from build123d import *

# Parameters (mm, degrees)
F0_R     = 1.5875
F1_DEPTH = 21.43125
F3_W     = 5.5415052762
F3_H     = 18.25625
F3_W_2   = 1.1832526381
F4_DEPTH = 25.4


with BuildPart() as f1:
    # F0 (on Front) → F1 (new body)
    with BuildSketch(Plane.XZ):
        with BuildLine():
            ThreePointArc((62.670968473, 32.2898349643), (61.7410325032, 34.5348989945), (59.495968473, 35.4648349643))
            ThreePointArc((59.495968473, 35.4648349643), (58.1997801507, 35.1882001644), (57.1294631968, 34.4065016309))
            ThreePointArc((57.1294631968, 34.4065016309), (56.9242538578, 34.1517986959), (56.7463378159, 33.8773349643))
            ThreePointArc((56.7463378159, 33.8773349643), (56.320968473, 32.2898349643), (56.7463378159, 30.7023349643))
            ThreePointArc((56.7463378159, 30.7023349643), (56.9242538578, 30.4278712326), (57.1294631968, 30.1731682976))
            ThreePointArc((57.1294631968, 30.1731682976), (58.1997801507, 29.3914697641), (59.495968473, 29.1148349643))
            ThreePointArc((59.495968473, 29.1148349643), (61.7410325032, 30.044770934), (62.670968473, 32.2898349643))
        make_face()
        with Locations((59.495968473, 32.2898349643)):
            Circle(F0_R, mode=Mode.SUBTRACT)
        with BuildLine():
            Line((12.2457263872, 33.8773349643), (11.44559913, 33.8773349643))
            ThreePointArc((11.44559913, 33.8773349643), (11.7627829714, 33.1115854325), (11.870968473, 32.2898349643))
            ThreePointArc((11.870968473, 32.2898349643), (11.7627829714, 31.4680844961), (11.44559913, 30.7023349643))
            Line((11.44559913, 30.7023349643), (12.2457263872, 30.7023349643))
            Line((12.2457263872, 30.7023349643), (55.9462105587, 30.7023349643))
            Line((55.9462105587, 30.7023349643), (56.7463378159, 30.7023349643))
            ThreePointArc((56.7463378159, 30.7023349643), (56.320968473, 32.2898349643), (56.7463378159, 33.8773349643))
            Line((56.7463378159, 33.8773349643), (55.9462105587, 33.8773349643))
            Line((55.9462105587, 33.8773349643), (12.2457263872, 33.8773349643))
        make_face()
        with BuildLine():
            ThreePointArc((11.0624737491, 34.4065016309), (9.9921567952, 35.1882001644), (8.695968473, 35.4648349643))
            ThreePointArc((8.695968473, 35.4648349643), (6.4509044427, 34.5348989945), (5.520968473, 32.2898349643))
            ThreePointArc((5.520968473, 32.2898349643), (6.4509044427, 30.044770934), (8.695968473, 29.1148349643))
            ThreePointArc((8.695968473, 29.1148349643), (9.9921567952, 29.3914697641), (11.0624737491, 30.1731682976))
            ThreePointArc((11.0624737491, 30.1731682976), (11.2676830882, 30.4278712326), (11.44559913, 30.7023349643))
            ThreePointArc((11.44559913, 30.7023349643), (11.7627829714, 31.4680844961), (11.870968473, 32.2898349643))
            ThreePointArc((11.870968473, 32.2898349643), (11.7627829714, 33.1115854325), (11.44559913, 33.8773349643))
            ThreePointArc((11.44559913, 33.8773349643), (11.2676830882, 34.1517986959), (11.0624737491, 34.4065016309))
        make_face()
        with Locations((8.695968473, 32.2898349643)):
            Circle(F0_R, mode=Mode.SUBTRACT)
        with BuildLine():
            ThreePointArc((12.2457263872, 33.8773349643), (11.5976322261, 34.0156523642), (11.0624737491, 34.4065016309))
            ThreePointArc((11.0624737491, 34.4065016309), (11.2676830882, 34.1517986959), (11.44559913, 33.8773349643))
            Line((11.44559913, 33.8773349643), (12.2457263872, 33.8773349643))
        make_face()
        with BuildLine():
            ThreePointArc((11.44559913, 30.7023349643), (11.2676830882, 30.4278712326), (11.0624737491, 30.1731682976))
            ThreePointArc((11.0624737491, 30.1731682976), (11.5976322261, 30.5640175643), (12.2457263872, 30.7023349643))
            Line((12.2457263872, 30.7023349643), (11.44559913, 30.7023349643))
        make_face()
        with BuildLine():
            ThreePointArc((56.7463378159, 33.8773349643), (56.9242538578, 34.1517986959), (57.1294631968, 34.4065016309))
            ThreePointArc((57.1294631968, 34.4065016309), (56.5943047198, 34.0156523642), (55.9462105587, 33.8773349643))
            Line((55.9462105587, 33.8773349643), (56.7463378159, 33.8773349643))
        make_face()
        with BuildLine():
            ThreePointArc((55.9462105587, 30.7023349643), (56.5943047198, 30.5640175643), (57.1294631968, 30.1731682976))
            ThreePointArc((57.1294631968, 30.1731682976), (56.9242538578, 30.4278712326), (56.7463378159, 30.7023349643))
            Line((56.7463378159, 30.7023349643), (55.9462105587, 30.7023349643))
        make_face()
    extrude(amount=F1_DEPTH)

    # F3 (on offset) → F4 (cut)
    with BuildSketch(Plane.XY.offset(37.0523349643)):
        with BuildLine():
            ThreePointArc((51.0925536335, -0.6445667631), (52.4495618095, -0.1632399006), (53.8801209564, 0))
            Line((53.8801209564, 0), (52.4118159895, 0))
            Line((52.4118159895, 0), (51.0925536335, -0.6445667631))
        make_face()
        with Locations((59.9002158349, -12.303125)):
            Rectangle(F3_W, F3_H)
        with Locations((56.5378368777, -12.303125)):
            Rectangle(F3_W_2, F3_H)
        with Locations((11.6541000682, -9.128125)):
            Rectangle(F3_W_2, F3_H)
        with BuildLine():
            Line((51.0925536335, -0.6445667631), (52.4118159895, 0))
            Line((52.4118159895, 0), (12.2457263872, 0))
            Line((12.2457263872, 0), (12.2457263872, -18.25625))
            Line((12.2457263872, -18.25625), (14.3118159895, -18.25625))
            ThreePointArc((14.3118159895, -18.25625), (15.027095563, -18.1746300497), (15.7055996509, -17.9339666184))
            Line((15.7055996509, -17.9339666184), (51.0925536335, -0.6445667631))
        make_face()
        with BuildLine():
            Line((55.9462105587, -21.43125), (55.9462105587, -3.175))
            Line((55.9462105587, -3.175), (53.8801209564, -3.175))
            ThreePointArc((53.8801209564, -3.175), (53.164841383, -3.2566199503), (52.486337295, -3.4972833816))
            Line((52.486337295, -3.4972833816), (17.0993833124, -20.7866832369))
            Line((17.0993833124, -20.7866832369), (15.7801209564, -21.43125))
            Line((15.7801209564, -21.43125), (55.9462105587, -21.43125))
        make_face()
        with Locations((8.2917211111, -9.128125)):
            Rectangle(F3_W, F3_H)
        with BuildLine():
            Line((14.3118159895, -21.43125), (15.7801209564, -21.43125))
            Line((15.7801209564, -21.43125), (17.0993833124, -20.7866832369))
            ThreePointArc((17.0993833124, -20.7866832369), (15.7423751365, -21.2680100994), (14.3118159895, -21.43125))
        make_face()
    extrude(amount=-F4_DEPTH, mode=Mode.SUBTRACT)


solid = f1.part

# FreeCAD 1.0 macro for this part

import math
import FreeCAD as App
import Part
import Sketcher
from FreeCAD import Vector
Q = App.Units.Quantity

doc = App.newDocument("Part")
params = doc.addObject("Spreadsheet::Sheet", "Params")
for row, (alias, value) in enumerate([
    ("sketch1_diameter", "0.125 in"),
    ("sketch1_radius", "0.125 in"),
    ("pad1_length", "0.84375 in"),
    ("sketch2_radius", "0.25 in"),
    ("sketch2_radius2", "0.125 in"),
    ("sketch2_height", "0.71875 in"),
    ("pocket1_length", "1 in"),
], start=1):
    params.set(f"A{row}", alias)
    params.set(f"B{row}", "=" + value)
    params.setAlias(f"B{row}", alias)

body = doc.addObject("PartDesign::Body", "Body")

# Sketch on XZ plane
sketch1 = body.newObject("Sketcher::SketchObject", "Sketch")
sketch1.AttachmentSupport = (doc.getObject("XZ_Plane"), [""])
sketch1.MapMode = "FlatFace"
sketch1.addGeometry(Part.ArcOfCircle(Part.Circle(Vector(59.5, 32.3, 0), Vector(0, 0, 1), 3.2), math.radians(0), math.radians(90)), False)
sketch1.addGeometry(Part.ArcOfCircle(Part.Circle(Vector(59.5, 32.3, 0), Vector(0, 0, 1), 3.2), math.radians(90), math.radians(138)), False)
sketch1.addGeometry(Part.ArcOfCircle(Part.Circle(Vector(55.9, 35.5, 0), Vector(0, 0, 1), 1.6), math.radians(-90), math.radians(-42)), False)
sketch1.addGeometry(Part.LineSegment(Vector(55.9, 33.9, 0), Vector(12.2, 33.9, 0)), False)
sketch1.addGeometry(Part.ArcOfCircle(Part.Circle(Vector(12.2, 35.5, 0), Vector(0, 0, 1), 1.6), math.radians(-138), math.radians(-90)), False)
sketch1.addGeometry(Part.ArcOfCircle(Part.Circle(Vector(8.7, 32.3, 0), Vector(0, 0, 1), 3.2), math.radians(42), math.radians(90)), False)
sketch1.addGeometry(Part.ArcOfCircle(Part.Circle(Vector(8.7, 32.3, 0), Vector(0, 0, 1), 3.2), math.radians(90), math.radians(180)), False)
sketch1.addGeometry(Part.ArcOfCircle(Part.Circle(Vector(8.7, 32.3, 0), Vector(0, 0, 1), 3.2), math.radians(180), math.radians(270)), False)
sketch1.addGeometry(Part.ArcOfCircle(Part.Circle(Vector(8.7, 32.3, 0), Vector(0, 0, 1), 3.2), math.radians(-90), math.radians(-42)), False)
sketch1.addGeometry(Part.ArcOfCircle(Part.Circle(Vector(12.2, 29.1, 0), Vector(0, 0, 1), 1.6), math.radians(90), math.radians(138)), False)
sketch1.addGeometry(Part.LineSegment(Vector(12.2, 30.7, 0), Vector(55.9, 30.7, 0)), False)
sketch1.addGeometry(Part.ArcOfCircle(Part.Circle(Vector(55.9, 29.1, 0), Vector(0, 0, 1), 1.6), math.radians(42), math.radians(90)), False)
sketch1.addGeometry(Part.ArcOfCircle(Part.Circle(Vector(59.5, 32.3, 0), Vector(0, 0, 1), 3.2), math.radians(-138), math.radians(-90)), False)
sketch1.addGeometry(Part.ArcOfCircle(Part.Circle(Vector(59.5, 32.3, 0), Vector(0, 0, 1), 3.2), math.radians(-90), math.radians(0)), False)
sketch1.addGeometry(Part.Circle(Vector(8.7, 32.3, 0), Vector(0, 0, 1), 1.6), False)
sketch1.addGeometry(Part.Circle(Vector(59.5, 32.3, 0), Vector(0, 0, 1), 1.6), False)
sketch1.addConstraint(Sketcher.Constraint("Tangent", 0, 2, 1, 1))
sketch1.addConstraint(Sketcher.Constraint("Tangent", 1, 2, 2, 2))
sketch1.addConstraint(Sketcher.Constraint("Tangent", 2, 1, 3, 1))
sketch1.addConstraint(Sketcher.Constraint("Tangent", 3, 2, 4, 2))
sketch1.addConstraint(Sketcher.Constraint("Tangent", 4, 1, 5, 1))
sketch1.addConstraint(Sketcher.Constraint("Tangent", 5, 2, 6, 1))
sketch1.addConstraint(Sketcher.Constraint("Tangent", 6, 2, 7, 1))
sketch1.addConstraint(Sketcher.Constraint("Tangent", 7, 2, 8, 1))
sketch1.addConstraint(Sketcher.Constraint("Tangent", 8, 2, 9, 2))
sketch1.addConstraint(Sketcher.Constraint("Tangent", 9, 1, 10, 1))
sketch1.addConstraint(Sketcher.Constraint("Tangent", 10, 2, 11, 2))
sketch1.addConstraint(Sketcher.Constraint("Tangent", 11, 1, 12, 1))
sketch1.addConstraint(Sketcher.Constraint("Tangent", 12, 2, 13, 1))
sketch1.addConstraint(Sketcher.Constraint("Tangent", 13, 2, 0, 1))
sketch1.addConstraint(Sketcher.Constraint("Horizontal", 3))
sketch1.addConstraint(Sketcher.Constraint("Horizontal", 10))
sketch1.addConstraint(Sketcher.Constraint("Coincident", 7, 3, 5, 3))
sketch1.addConstraint(Sketcher.Constraint("Coincident", 12, 3, 0, 3))
sketch1.addConstraint(Sketcher.Constraint("Coincident", 14, 3, 5, 3))
sketch1.addConstraint(Sketcher.Constraint("Coincident", 15, 3, 0, 3))
sketch1.addConstraint(Sketcher.Constraint("Equal", 0, 1))
sketch1.addConstraint(Sketcher.Constraint("Equal", 2, 4))
sketch1.addConstraint(Sketcher.Constraint("Equal", 1, 5))
sketch1.addConstraint(Sketcher.Constraint("Equal", 7, 8))
sketch1.addConstraint(Sketcher.Constraint("Equal", 4, 9))
sketch1.addConstraint(Sketcher.Constraint("Equal", 9, 11))
sketch1.addConstraint(Sketcher.Constraint("Equal", 11, 14))
sketch1.addConstraint(Sketcher.Constraint("Equal", 14, 15))
sketch1.addConstraint(Sketcher.Constraint("Horizontal", 1, 3, 5, 3))
sketch1.addConstraint(Sketcher.Constraint("Horizontal", 4, 3, 0, 2))
sketch1.addConstraint(Sketcher.Constraint("Horizontal", 15, 3, 6, 2))
sketch1.addConstraint(Sketcher.Constraint("Horizontal", 11, 3, 7, 2))
sketch1.addConstraint(Sketcher.Constraint("Horizontal", 6, 2, 13, 2))
sketch1.addConstraint(Sketcher.Constraint("Vertical", 15, 3, 0, 2))
sketch1.addConstraint(Sketcher.Constraint("Vertical", 14, 3, 5, 2))
sketch1.addConstraint(Sketcher.Constraint("Vertical", 5, 2, 7, 2))
sketch1.addConstraint(Sketcher.Constraint("Vertical", 0, 2, 12, 2))
sketch1.addConstraint(Sketcher.Constraint("Diameter", 14, Q("0.125 in")))
sketch1.addConstraint(Sketcher.Constraint("Radius", 0, Q("0.125 in")))
sketch1.addConstraint(Sketcher.Constraint("DistanceX", 5, 3, 0, 3, Q("2 in")))
sketch1.addConstraint(Sketcher.Constraint("DistanceY", -1, 1, 1, 2, 34.406502))
sketch1.addConstraint(Sketcher.Constraint("DistanceX", -1, 1, 0, 3, 59.495968))
sketch1.setExpression("Constraints[37]", "Params.sketch1_diameter")
sketch1.setExpression("Constraints[38]", "Params.sketch1_radius")
pad1 = body.newObject("PartDesign::Pad", "Pad")
pad1.Profile = sketch1
pad1.setExpression("Length", "Params.pad1_length")

# Sketch on XY plane
sketch2 = body.newObject("Sketcher::SketchObject", "Sketch001")
sketch2.AttachmentSupport = (doc.getObject("XY_Plane"), [""])
sketch2.MapMode = "FlatFace"
sketch2.AttachmentOffset = App.Placement(Vector(0, 0, 37.052335), App.Rotation())
sketch2.addGeometry(Part.ArcOfCircle(Part.Circle(Vector(53.9, -6.3, 0), Vector(0, 0, 1), 6.3), math.radians(90), math.radians(116)), False)
sketch2.addGeometry(Part.LineSegment(Vector(53.9, 0, 0), Vector(5.5, 0, 0)), False)
sketch2.addGeometry(Part.LineSegment(Vector(5.5, 0, 0), Vector(5.5, -18.3, 0)), False)
sketch2.addGeometry(Part.LineSegment(Vector(5.5, -18.3, 0), Vector(14.3, -18.3, 0)), False)
sketch2.addGeometry(Part.ArcOfCircle(Part.Circle(Vector(14.3, -15.1, 0), Vector(0, 0, 1), 3.2), math.radians(-90), math.radians(-64)), False)
sketch2.addGeometry(Part.LineSegment(Vector(15.7, -17.9, 0), Vector(51.1, -0.6, 0)), False)
sketch2.addGeometry(Part.LineSegment(Vector(62.7, -21.4, 0), Vector(62.7, -3.2, 0)), False)
sketch2.addGeometry(Part.LineSegment(Vector(62.7, -3.2, 0), Vector(53.9, -3.2, 0)), False)
sketch2.addGeometry(Part.ArcOfCircle(Part.Circle(Vector(53.9, -6.3, 0), Vector(0, 0, 1), 3.2), math.radians(90), math.radians(116)), False)
sketch2.addGeometry(Part.LineSegment(Vector(52.5, -3.5, 0), Vector(17.1, -20.8, 0)), False)
sketch2.addGeometry(Part.ArcOfCircle(Part.Circle(Vector(14.3, -15.1, 0), Vector(0, 0, 1), 6.3), math.radians(-90), math.radians(-64)), False)
sketch2.addGeometry(Part.LineSegment(Vector(14.3, -21.4, 0), Vector(62.7, -21.4, 0)), False)
sketch2.addConstraint(Sketcher.Constraint("Tangent", 0, 1, 1, 1))
sketch2.addConstraint(Sketcher.Constraint("Coincident", 1, 2, 2, 1))
sketch2.addConstraint(Sketcher.Constraint("Coincident", 2, 2, 3, 1))
sketch2.addConstraint(Sketcher.Constraint("Tangent", 3, 2, 4, 1))
sketch2.addConstraint(Sketcher.Constraint("Tangent", 4, 2, 5, 1))
sketch2.addConstraint(Sketcher.Constraint("Tangent", 5, 2, 0, 2))
sketch2.addConstraint(Sketcher.Constraint("Coincident", 6, 2, 7, 1))
sketch2.addConstraint(Sketcher.Constraint("Tangent", 7, 2, 8, 1))
sketch2.addConstraint(Sketcher.Constraint("Tangent", 8, 2, 9, 1))
sketch2.addConstraint(Sketcher.Constraint("Tangent", 9, 2, 10, 2))
sketch2.addConstraint(Sketcher.Constraint("Tangent", 10, 1, 11, 1))
sketch2.addConstraint(Sketcher.Constraint("Coincident", 11, 2, 6, 1))
sketch2.addConstraint(Sketcher.Constraint("Horizontal", 1))
sketch2.addConstraint(Sketcher.Constraint("Vertical", 2))
sketch2.addConstraint(Sketcher.Constraint("Horizontal", 3))
sketch2.addConstraint(Sketcher.Constraint("Vertical", 6))
sketch2.addConstraint(Sketcher.Constraint("Horizontal", 7))
sketch2.addConstraint(Sketcher.Constraint("Horizontal", 11))
sketch2.addConstraint(Sketcher.Constraint("Coincident", 8, 3, 0, 3))
sketch2.addConstraint(Sketcher.Constraint("Coincident", 10, 3, 4, 3))
sketch2.addConstraint(Sketcher.Constraint("Equal", 4, 8))
sketch2.addConstraint(Sketcher.Constraint("Equal", 0, 10))
sketch2.addConstraint(Sketcher.Constraint("PointOnObject", 0, 1, -1))
sketch2.addConstraint(Sketcher.Constraint("Equal", 3, 7))
sketch2.addConstraint(Sketcher.Constraint("Radius", 0, Q("0.25 in")))
sketch2.addConstraint(Sketcher.Constraint("Radius", 4, Q("0.125 in")))
sketch2.addConstraint(Sketcher.Constraint("DistanceY", 2, 2, 2, 1, Q("0.71875 in")))
sketch2.addConstraint(Sketcher.Constraint("DistanceX", -1, 1, 4, 2, 15.7056))
sketch2.addConstraint(Sketcher.Constraint("DistanceY", 4, 2, 5, 2, 17.2894))
sketch2.addConstraint(Sketcher.Constraint("DistanceX", 1, 2, 1, 1, 48.359152))
sketch2.setExpression("Constraints[24]", "Params.sketch2_radius")
sketch2.setExpression("Constraints[25]", "Params.sketch2_radius2")
sketch2.setExpression("Constraints[26]", "Params.sketch2_height")
pocket1 = body.newObject("PartDesign::Pocket", "Pocket")
pocket1.Profile = sketch2
pocket1.setExpression("Length", "Params.pocket1_length")

doc.recompute()
